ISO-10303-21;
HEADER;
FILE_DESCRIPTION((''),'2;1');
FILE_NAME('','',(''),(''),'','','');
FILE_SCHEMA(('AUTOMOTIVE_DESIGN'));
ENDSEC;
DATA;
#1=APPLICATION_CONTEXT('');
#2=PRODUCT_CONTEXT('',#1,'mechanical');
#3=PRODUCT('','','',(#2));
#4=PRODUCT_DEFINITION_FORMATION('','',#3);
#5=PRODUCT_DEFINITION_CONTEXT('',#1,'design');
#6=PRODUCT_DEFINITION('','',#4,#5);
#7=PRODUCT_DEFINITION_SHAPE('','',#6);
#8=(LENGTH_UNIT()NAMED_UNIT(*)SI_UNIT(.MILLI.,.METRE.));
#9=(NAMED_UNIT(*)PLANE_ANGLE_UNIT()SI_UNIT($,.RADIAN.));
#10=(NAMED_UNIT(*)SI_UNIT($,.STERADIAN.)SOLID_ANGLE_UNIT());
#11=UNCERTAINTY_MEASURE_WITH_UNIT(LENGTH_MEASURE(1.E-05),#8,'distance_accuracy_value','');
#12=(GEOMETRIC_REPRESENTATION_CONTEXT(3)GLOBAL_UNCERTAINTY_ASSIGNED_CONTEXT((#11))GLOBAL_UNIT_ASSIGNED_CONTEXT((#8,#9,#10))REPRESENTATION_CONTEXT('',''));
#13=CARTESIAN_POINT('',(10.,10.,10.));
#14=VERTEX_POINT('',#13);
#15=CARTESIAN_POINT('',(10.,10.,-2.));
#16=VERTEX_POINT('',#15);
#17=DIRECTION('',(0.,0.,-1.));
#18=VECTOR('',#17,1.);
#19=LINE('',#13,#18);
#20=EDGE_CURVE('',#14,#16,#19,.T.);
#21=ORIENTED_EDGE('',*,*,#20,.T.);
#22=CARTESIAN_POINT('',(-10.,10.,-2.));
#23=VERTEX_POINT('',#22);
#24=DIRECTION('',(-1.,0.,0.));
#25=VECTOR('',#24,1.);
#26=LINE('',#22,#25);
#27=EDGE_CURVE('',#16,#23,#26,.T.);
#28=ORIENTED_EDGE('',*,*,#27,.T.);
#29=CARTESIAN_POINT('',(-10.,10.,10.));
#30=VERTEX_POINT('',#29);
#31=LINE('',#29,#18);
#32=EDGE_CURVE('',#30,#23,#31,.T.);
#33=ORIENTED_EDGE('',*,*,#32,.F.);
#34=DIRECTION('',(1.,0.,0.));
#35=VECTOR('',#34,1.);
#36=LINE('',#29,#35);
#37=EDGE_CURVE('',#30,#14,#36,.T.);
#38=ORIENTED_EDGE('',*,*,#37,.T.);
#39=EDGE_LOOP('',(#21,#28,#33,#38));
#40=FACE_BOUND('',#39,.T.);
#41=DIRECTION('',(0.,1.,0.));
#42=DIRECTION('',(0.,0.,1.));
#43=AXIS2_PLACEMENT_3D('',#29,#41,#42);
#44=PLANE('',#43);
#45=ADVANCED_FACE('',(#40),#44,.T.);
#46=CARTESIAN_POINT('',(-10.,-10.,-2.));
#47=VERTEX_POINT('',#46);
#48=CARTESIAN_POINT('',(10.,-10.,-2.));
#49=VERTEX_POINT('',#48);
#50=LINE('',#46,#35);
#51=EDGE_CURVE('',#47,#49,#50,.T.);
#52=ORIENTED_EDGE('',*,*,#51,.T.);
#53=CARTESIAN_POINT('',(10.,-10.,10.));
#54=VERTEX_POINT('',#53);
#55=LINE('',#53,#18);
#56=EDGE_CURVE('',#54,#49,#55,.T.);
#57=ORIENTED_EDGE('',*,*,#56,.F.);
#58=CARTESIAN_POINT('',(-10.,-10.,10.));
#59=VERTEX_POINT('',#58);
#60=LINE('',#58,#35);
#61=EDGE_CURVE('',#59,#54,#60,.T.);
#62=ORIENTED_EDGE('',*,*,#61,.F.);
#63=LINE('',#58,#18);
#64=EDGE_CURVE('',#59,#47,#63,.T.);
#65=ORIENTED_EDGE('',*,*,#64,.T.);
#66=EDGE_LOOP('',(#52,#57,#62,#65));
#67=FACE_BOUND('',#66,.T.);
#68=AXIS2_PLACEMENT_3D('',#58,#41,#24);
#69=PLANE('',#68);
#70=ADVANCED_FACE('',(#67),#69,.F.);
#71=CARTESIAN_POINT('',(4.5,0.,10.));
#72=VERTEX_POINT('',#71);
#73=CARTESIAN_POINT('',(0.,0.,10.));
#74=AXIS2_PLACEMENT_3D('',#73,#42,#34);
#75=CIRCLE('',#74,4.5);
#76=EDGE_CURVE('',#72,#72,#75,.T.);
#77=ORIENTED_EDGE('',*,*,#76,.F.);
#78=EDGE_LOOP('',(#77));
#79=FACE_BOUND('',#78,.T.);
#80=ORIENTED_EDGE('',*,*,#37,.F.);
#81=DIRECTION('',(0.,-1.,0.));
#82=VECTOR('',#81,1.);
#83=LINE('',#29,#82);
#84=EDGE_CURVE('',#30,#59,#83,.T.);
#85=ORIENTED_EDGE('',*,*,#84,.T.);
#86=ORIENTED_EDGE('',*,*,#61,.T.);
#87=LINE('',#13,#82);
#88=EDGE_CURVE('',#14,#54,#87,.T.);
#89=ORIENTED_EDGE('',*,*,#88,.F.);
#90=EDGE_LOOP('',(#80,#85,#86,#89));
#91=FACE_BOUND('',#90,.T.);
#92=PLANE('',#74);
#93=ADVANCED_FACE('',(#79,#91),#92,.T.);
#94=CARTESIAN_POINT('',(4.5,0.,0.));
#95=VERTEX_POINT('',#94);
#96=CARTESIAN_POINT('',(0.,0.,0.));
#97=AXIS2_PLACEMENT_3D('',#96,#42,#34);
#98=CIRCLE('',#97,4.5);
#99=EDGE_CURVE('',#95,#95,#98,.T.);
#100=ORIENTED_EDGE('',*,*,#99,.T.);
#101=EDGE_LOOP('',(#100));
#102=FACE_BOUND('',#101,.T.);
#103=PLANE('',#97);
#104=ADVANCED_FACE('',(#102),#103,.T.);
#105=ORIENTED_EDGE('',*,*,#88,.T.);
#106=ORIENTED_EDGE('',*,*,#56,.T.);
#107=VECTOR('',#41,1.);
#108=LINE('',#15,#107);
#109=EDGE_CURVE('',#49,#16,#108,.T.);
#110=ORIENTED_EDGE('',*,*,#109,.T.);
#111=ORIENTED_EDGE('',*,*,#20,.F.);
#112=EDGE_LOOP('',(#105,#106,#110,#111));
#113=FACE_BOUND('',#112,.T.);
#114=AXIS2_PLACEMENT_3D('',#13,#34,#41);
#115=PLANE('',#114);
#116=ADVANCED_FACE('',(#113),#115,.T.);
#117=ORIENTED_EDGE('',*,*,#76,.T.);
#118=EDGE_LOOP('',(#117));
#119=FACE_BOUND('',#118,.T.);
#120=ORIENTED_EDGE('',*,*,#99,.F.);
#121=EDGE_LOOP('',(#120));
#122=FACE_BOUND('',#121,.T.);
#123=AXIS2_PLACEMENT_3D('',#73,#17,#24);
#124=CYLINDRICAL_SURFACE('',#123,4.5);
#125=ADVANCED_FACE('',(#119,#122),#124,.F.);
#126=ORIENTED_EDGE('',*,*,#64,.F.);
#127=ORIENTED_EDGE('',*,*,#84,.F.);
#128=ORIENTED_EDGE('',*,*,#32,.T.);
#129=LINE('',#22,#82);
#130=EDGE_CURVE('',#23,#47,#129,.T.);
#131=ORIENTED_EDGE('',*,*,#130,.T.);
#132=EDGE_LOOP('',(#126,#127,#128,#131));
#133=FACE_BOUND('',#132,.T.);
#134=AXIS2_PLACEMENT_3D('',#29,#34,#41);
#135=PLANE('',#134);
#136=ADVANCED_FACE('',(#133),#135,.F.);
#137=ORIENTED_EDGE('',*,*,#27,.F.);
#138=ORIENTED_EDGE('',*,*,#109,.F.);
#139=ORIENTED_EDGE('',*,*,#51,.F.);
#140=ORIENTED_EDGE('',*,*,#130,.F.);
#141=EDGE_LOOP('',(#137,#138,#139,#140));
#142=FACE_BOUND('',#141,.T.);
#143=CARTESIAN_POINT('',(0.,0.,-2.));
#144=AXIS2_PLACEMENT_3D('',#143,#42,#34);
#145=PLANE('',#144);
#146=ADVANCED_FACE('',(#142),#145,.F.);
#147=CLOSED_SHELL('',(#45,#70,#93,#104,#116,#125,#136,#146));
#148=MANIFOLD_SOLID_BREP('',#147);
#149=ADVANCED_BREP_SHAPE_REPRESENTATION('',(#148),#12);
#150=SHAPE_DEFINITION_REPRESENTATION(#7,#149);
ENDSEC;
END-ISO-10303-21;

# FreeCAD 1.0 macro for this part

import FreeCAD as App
import Part
import Sketcher

V = App.Vector


def add_polygon(sketch, points):
    """Adds a closed chain of lines whose ends are joined by coincident constraints."""
    first, n = sketch.GeometryCount, len(points)
    for a, b in zip(points, points[1:] + points[:1]):
        sketch.addGeometry(Part.LineSegment(App.Vector(*a, 0), App.Vector(*b, 0)), False)
    for i in range(n):
        sketch.addConstraint(Sketcher.Constraint("Coincident", first + i, 2, first + (i + 1) % n, 1))

doc = App.newDocument("Part")
body = doc.addObject("PartDesign::Body", "Body")

# Sketch on XY plane
sketch1 = body.newObject("Sketcher::SketchObject", "Sketch")
sketch1.AttachmentSupport = (doc.getObject("XY_Plane"), [""])
sketch1.MapMode = "FlatFace"
add_polygon(sketch1, [(-10, 10), (-10, -10), (10, -10), (10, 10)])  # lines 0-3
sketch1.addGeometry(Part.Circle(V(0, 0, 0), V(0, 0, 1), 4.5), False)  # 4
sketch1.addConstraint([
    Sketcher.Constraint("Vertical", 0),
    Sketcher.Constraint("Horizontal", 1),
    Sketcher.Constraint("Vertical", 2),
    Sketcher.Constraint("Horizontal", 3),
    Sketcher.Constraint("Coincident", 4, 3, -1, 1),
    Sketcher.Constraint("Symmetric", 0, 2, 2, 2, -1, 1),
    Sketcher.Constraint("Equal", 3, 0),
    Sketcher.Constraint("Diameter", 4, 9.0),
    Sketcher.Constraint("DistanceX", 1, 1, 1, 2, 20.0),
])
pad1 = body.newObject("PartDesign::Pad", "Pad")
pad1.Profile = sketch1
pad1.Length = 10

# Sketch on XY plane
sketch2 = body.newObject("Sketcher::SketchObject", "Sketch001")
sketch2.AttachmentSupport = (doc.getObject("XY_Plane"), [""])
sketch2.MapMode = "FlatFace"
add_polygon(sketch2, [(-10, 10), (-10, -10), (10, -10), (10, 10)])  # lines 0-3
sketch2.addConstraint([
    Sketcher.Constraint("Vertical", 0),
    Sketcher.Constraint("Horizontal", 1),
    Sketcher.Constraint("Vertical", 2),
    Sketcher.Constraint("Horizontal", 3),
    Sketcher.Constraint("Symmetric", 0, 2, 2, 2, -1, 1),
    Sketcher.Constraint("Equal", 3, 0),
    Sketcher.Constraint("DistanceX", 1, 1, 1, 2, 20.0),
])
pad2 = body.newObject("PartDesign::Pad", "Pad001")
pad2.Profile = sketch2
pad2.Length = 2
pad2.Reversed = True

doc.recompute()
